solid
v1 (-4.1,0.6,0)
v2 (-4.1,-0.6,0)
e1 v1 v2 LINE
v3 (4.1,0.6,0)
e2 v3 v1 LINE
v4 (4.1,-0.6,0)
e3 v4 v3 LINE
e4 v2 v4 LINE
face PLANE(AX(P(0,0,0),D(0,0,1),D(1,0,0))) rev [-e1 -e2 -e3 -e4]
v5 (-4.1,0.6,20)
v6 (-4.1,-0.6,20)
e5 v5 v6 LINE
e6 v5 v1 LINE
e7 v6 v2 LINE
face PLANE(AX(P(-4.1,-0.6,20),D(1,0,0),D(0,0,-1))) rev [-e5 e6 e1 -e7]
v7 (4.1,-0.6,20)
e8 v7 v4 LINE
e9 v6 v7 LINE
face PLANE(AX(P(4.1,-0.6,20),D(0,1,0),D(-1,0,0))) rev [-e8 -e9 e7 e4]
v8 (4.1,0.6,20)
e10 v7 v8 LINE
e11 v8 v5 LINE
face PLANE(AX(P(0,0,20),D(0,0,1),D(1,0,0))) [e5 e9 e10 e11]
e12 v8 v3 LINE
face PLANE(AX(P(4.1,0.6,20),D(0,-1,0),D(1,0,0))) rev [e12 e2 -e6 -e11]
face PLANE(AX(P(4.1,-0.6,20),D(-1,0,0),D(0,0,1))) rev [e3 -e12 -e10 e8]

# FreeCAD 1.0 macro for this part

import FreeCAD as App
import Part
import Sketcher

V = App.Vector
Q = App.Units.Quantity


def add_polygon(sketch, points):
    """Adds a closed chain of lines whose ends are joined by coincident constraints."""
    first, n = sketch.GeometryCount, len(points)
    for a, b in zip(points, points[1:] + points[:1]):
        sketch.addGeometry(Part.LineSegment(App.Vector(*a, 0), App.Vector(*b, 0)), False)
    for i in range(n):
        sketch.addConstraint(Sketcher.Constraint("Coincident", first + i, 2, first + (i + 1) % n, 1))

doc = App.newDocument("Part")
body = doc.addObject("PartDesign::Body", "Body")

# Sketch on XY plane
sketch1 = body.newObject("Sketcher::SketchObject", "Sketch")
sketch1.AttachmentSupport = (doc.getObject("XY_Plane"), [""])
sketch1.MapMode = "FlatFace"
add_polygon(sketch1, [(-4.1, 0.6), (-4.1, -0.6), (4.1, -0.6), (4.1, 0.6)])  # lines 0-3
sketch1.addConstraint(Sketcher.Constraint("Vertical", 0))
sketch1.addConstraint(Sketcher.Constraint("Horizontal", 1))
sketch1.addConstraint(Sketcher.Constraint("Vertical", 2))
sketch1.addConstraint(Sketcher.Constraint("Horizontal", 3))
sketch1.addConstraint(Sketcher.Constraint("Symmetric", 0, 2, 2, 2, -1, 1))
sketch1.addConstraint(Sketcher.Constraint("DistanceX", 1, 1, 1, 2, Q("8.2 mm")))
sketch1.addConstraint(Sketcher.Constraint("DistanceY", 0, 2, 0, 1, Q("1.2 mm")))
pad1 = body.newObject("PartDesign::Pad", "Pad")
pad1.Profile = sketch1
pad1.Length = 20

doc.recompute()
